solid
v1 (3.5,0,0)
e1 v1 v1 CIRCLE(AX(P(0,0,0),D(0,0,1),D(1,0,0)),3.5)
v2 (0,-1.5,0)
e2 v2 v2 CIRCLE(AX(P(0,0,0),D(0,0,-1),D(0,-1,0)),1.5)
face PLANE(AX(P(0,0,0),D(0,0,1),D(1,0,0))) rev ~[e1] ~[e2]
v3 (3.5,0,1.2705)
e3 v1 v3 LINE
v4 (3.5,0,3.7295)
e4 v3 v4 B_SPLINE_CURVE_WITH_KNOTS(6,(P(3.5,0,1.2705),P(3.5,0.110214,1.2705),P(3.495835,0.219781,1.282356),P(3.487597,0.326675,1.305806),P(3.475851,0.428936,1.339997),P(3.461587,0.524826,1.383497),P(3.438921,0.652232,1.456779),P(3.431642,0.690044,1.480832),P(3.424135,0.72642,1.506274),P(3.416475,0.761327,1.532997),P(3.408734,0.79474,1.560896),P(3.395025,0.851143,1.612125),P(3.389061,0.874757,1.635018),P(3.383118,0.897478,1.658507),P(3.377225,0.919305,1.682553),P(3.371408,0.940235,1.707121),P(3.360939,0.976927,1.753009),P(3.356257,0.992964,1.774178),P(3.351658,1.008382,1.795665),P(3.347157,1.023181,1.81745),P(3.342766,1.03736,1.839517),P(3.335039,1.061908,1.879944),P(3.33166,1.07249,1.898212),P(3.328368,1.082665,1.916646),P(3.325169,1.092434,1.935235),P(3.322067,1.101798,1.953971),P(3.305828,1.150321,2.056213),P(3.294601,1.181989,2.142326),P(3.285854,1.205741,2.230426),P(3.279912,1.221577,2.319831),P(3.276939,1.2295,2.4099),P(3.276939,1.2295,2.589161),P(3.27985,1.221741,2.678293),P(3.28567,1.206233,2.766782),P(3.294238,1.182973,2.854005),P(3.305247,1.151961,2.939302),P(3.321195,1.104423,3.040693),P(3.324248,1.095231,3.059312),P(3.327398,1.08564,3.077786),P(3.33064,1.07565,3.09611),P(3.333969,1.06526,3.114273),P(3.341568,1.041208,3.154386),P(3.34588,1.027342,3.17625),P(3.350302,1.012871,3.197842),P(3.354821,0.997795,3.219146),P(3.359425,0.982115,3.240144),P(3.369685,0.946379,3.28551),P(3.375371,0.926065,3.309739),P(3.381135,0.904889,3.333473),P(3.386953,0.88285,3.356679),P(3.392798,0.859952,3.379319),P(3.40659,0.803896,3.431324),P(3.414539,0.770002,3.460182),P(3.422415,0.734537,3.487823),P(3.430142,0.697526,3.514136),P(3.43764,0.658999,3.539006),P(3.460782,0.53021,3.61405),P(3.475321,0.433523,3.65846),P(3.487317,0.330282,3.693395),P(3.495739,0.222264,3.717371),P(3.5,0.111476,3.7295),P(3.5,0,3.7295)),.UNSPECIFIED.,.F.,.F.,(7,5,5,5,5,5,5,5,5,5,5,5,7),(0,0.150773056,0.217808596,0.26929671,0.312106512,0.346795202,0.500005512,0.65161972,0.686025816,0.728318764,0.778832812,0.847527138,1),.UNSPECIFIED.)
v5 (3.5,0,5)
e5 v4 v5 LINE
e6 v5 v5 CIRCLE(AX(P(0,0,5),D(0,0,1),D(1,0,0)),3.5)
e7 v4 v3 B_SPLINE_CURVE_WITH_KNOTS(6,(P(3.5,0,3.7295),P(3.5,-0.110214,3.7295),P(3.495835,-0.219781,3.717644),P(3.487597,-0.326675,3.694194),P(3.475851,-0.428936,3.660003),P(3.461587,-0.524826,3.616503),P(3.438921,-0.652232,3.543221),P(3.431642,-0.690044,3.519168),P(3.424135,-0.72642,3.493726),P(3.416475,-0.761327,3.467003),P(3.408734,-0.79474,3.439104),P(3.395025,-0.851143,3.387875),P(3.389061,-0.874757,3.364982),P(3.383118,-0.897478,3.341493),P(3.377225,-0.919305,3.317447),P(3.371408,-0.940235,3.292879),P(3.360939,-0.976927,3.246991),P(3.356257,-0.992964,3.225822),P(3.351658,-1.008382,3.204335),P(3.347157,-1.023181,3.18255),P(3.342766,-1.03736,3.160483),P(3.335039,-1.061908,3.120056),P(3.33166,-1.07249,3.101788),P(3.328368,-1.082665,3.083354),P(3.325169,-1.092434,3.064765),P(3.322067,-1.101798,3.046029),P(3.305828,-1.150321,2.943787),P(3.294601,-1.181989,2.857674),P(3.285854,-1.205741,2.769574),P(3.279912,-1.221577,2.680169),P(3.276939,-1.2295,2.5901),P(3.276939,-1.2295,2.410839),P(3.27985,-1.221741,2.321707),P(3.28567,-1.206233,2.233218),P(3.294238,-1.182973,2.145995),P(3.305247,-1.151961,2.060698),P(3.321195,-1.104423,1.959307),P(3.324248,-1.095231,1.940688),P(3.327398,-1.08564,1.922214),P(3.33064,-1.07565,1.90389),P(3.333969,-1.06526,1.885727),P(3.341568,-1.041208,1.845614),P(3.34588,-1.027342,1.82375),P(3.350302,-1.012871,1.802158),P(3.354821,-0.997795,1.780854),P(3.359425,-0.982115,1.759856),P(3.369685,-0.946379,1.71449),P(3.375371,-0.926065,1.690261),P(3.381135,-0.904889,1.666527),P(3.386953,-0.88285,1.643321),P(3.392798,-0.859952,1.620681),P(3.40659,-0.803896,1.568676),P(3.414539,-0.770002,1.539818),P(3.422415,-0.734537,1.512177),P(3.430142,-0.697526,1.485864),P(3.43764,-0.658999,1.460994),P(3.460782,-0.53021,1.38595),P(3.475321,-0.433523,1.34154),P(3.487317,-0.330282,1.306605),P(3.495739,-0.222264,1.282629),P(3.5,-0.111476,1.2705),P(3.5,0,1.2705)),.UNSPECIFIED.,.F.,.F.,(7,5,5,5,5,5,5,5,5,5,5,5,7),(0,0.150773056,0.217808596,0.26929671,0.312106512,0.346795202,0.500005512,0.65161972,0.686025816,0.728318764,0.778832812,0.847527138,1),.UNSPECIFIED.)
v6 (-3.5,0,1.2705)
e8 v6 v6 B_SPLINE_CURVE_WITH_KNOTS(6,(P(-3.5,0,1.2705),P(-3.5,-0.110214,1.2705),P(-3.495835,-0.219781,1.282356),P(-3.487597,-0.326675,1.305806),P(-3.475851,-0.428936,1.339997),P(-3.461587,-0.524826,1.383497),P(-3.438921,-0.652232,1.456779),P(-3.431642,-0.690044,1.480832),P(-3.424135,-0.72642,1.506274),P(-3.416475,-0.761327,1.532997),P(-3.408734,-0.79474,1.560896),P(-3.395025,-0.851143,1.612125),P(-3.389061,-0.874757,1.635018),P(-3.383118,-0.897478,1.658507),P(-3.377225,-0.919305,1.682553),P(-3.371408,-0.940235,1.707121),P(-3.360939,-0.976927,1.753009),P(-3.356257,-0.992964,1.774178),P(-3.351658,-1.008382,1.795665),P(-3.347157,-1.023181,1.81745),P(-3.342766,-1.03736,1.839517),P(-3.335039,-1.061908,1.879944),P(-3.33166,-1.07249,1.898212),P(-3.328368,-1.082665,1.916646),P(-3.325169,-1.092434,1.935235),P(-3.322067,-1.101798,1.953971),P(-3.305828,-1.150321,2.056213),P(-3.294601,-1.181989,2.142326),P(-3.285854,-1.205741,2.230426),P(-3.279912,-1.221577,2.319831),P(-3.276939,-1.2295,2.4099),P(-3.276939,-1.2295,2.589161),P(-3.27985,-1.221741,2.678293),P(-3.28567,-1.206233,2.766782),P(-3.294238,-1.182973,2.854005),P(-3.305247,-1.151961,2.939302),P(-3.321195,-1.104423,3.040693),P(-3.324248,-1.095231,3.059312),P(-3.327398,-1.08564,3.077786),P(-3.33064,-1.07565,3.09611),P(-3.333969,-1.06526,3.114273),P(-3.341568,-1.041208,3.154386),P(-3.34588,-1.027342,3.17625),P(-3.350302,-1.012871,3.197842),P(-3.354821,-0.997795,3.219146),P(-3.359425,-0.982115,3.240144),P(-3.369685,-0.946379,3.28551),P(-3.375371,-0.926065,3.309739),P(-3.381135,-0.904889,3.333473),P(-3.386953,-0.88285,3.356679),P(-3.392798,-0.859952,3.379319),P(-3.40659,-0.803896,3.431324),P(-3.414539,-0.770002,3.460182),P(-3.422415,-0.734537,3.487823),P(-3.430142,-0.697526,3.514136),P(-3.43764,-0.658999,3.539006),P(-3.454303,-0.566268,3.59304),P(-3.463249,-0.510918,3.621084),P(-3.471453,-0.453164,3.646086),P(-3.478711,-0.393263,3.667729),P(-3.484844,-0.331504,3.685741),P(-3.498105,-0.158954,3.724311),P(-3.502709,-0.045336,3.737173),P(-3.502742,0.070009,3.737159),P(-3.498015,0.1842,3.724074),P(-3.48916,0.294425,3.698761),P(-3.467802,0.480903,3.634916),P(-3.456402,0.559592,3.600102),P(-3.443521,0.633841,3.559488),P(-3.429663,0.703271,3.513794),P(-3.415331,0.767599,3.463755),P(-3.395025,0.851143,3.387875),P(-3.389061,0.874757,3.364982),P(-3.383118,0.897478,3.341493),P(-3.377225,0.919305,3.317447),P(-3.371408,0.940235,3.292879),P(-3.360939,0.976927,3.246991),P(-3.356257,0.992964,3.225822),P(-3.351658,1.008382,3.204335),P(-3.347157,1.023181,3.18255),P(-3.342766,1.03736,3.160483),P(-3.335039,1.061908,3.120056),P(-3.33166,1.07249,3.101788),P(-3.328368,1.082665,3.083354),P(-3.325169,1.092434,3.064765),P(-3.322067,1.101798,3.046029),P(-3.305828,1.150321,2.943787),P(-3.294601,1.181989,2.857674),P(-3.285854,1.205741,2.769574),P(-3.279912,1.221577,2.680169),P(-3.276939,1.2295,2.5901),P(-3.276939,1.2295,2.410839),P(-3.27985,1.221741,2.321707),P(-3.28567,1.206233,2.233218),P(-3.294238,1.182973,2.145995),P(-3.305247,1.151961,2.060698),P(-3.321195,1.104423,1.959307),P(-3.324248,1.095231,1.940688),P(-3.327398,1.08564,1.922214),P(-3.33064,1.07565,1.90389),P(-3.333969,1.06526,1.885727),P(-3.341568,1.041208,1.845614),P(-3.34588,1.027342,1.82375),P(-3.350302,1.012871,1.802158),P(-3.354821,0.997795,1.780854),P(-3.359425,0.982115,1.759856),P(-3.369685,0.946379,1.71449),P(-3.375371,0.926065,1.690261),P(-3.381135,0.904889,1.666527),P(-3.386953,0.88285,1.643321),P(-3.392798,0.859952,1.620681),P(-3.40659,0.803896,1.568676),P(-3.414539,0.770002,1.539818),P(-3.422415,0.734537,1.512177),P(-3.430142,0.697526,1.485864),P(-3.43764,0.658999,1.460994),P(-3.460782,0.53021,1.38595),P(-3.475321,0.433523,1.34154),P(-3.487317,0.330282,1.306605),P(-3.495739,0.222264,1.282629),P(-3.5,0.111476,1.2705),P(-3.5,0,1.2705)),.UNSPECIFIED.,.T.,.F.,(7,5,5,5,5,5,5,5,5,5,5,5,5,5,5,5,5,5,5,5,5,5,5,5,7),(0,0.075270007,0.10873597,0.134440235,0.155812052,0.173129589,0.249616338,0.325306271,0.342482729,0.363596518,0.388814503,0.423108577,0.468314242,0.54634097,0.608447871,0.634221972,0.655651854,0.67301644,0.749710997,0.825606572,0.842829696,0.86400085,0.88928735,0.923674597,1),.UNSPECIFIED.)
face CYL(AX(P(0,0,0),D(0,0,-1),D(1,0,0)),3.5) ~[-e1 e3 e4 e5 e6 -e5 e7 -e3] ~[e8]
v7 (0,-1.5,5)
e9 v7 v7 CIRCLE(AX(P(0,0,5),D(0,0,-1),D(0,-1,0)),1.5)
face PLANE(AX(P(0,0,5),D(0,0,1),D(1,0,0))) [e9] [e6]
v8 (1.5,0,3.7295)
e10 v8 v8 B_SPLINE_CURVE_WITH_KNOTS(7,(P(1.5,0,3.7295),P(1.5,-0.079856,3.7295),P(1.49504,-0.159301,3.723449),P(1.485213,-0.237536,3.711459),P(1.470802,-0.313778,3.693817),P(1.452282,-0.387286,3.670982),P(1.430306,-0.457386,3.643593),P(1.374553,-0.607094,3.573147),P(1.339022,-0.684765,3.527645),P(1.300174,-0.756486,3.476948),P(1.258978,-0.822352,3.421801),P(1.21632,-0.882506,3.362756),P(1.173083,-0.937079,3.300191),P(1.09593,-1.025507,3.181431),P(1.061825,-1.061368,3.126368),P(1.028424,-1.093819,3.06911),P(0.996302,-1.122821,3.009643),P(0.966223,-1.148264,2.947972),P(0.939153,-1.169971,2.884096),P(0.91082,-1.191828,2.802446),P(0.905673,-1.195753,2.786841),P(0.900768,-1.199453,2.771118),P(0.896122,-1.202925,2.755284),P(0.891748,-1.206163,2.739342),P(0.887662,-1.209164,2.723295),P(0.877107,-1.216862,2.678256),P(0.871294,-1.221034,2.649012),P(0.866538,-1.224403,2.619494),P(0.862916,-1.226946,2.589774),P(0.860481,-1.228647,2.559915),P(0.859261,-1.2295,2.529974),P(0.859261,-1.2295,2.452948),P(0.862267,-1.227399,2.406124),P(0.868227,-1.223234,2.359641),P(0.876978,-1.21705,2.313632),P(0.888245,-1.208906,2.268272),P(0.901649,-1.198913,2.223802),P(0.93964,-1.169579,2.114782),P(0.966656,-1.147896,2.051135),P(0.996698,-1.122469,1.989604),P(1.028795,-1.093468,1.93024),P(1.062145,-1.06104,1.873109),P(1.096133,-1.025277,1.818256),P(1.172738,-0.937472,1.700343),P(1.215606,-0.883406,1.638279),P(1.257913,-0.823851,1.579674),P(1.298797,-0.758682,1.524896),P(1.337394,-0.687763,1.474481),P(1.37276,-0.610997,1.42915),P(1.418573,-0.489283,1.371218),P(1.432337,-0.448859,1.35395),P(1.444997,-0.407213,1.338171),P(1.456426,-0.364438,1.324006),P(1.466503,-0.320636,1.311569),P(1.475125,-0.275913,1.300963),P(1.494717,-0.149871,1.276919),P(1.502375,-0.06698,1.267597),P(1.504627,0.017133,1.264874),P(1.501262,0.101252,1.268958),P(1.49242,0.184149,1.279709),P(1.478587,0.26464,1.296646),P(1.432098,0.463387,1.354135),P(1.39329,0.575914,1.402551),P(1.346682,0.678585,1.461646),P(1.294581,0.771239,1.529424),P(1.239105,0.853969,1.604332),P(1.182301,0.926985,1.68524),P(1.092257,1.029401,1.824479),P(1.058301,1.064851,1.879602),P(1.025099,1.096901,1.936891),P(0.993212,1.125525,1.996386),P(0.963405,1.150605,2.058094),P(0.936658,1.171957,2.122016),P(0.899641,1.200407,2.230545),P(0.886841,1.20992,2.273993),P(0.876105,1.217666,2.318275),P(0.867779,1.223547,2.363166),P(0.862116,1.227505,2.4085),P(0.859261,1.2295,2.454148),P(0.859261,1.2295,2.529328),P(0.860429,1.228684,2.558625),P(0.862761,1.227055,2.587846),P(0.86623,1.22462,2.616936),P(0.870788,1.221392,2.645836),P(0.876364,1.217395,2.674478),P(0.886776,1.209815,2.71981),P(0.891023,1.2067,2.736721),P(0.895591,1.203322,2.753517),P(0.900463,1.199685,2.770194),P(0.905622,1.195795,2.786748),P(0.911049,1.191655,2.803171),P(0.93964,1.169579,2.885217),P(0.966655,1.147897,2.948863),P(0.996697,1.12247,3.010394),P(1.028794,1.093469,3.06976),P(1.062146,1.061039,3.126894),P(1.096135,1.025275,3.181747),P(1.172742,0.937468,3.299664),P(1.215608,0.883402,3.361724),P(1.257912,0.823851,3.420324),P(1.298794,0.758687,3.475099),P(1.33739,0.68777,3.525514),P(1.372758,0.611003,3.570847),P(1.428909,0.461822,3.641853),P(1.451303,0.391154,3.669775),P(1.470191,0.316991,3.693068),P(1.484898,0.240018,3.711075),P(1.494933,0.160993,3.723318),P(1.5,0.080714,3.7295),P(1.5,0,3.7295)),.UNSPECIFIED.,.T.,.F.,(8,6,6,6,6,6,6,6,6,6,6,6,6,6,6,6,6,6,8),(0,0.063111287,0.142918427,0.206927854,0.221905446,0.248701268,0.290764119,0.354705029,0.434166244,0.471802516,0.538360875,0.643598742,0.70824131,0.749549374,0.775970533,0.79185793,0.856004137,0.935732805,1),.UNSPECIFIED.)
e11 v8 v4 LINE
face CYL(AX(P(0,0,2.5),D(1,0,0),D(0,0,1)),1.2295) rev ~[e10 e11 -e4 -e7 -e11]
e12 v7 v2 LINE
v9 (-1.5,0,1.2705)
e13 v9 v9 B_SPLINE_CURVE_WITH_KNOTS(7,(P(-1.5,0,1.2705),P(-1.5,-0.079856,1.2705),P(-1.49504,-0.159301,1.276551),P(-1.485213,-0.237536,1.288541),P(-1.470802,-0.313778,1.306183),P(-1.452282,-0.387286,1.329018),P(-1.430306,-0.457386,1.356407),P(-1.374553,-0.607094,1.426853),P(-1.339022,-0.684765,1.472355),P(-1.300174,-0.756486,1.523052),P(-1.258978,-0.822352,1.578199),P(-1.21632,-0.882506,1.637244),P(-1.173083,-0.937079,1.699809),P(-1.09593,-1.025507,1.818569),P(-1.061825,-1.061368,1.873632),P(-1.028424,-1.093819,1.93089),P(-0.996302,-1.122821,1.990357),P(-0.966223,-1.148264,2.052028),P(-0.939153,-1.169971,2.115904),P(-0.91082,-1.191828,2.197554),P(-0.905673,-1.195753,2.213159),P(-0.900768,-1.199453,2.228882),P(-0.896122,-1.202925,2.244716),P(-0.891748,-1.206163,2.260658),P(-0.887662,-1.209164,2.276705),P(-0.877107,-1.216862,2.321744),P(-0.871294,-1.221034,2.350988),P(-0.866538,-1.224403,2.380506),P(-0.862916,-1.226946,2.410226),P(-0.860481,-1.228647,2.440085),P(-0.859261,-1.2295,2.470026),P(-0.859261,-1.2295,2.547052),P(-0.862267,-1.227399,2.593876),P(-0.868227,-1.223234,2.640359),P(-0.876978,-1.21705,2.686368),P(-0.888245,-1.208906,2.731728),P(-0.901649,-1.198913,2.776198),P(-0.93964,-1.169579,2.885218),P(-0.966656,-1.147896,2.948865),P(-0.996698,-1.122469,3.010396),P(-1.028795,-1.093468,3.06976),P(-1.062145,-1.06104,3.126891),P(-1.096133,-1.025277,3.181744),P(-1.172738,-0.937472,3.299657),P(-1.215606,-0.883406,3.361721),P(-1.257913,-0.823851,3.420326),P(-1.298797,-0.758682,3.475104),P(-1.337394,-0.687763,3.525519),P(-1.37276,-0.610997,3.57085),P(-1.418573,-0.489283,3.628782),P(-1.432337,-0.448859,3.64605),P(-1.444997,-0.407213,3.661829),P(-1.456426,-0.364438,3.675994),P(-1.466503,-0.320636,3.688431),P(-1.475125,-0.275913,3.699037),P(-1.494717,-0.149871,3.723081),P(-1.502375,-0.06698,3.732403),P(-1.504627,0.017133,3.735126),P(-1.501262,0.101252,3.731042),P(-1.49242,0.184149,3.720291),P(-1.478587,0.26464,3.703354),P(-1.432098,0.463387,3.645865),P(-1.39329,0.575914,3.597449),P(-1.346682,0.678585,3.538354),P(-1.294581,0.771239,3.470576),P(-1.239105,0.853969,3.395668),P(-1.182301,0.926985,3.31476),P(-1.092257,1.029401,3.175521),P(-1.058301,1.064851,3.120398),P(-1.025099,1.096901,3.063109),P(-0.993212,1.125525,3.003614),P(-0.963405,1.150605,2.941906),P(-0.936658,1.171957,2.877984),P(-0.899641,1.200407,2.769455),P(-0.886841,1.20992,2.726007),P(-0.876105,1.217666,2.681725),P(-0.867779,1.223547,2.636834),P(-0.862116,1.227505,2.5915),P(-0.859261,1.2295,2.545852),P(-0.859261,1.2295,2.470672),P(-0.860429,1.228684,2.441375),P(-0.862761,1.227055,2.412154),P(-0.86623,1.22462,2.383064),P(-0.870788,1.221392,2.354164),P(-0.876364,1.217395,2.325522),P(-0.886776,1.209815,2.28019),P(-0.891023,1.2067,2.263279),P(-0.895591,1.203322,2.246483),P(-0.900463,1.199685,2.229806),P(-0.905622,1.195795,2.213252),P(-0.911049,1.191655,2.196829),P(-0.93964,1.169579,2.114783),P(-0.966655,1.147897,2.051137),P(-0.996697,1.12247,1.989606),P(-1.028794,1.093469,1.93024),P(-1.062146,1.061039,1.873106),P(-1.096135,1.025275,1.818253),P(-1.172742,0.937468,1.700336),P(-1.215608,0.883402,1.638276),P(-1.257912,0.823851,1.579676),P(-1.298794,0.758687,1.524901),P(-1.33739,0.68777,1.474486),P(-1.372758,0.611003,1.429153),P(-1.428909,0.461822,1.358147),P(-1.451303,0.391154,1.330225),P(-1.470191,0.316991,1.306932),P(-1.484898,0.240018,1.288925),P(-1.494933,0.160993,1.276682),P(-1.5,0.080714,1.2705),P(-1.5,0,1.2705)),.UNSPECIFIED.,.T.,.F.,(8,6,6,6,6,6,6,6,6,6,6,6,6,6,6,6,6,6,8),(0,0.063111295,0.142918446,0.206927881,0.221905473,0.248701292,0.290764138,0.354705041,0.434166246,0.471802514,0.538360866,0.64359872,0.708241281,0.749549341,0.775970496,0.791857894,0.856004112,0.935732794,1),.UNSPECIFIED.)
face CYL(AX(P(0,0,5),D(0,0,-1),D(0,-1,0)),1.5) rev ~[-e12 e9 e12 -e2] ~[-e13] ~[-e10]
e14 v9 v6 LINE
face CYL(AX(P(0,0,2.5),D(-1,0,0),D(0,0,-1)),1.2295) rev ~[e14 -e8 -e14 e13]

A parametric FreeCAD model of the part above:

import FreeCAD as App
import Part
import Sketcher
from FreeCAD import Vector

doc = App.newDocument("Part")
body = doc.addObject("PartDesign::Body", "Body")

# Sketch on XY plane
sketch1 = body.newObject("Sketcher::SketchObject", "Sketch")
sketch1.AttachmentSupport = (doc.getObject("XY_Plane"), [""])
sketch1.MapMode = "FlatFace"
sketch1.addGeometry(Part.Circle(Vector(0, 0, 0), Vector(0, 0, 1), 3.5), False)
sketch1.addConstraint(Sketcher.Constraint("Coincident", 0, 3, -1, 1))
sketch1.addConstraint(Sketcher.Constraint("Diameter", 0, 7.0))
pad1 = body.newObject("PartDesign::Pad", "Pad")
pad1.Profile = sketch1
pad1.Length = 5

# Sketch on XY plane
sketch2 = body.newObject("Sketcher::SketchObject", "Sketch001")
sketch2.AttachmentSupport = (doc.getObject("XY_Plane"), [""])
sketch2.MapMode = "FlatFace"
sketch2.AttachmentOffset = App.Placement(Vector(0, 0, 5), App.Rotation())
sketch2.addGeometry(Part.Circle(Vector(0, 0, 0), Vector(0, 0, 1), 1.5), False)
sketch2.addConstraint(Sketcher.Constraint("Coincident", 0, 3, -1, 1))
sketch2.addConstraint(Sketcher.Constraint("Diameter", 0, 3.0))
doc.recompute()
hole = body.newObject("PartDesign::Hole", "Hole")
hole.Profile = sketch2
hole.ThreadType = "None"
hole.Diameter = 3
hole.DepthType = "ThroughAll"

# Sketch on YZ plane
sketch3 = body.newObject("Sketcher::SketchObject", "Sketch002")
sketch3.AttachmentSupport = (doc.getObject("YZ_Plane"), [""])
sketch3.MapMode = "FlatFace"
sketch3.addGeometry(Part.Circle(Vector(0, 2.5, 0), Vector(0, 0, 1), 1.2), False)
sketch3.addConstraint(Sketcher.Constraint("PointOnObject", 0, 3, -2))
sketch3.addConstraint(Sketcher.Constraint("Diameter", 0, 2.459))
sketch3.addConstraint(Sketcher.Constraint("DistanceY", -1, 1, 0, 3, 2.5))
doc.recompute()
hole2 = body.newObject("PartDesign::Hole", "Hole001")
hole2.Profile = sketch3
hole2.ThreadType = "None"
hole2.Diameter = 2.459
hole2.DepthType = "ThroughAll"

# Sketch on YZ plane
sketch4 = body.newObject("Sketcher::SketchObject", "Sketch003")
sketch4.AttachmentSupport = (doc.getObject("YZ_Plane"), [""])
sketch4.MapMode = "FlatFace"
sketch4.addGeometry(Part.Circle(Vector(0, 2.5, 0), Vector(0, 0, 1), 1.2), False)
sketch4.addConstraint(Sketcher.Constraint("PointOnObject", 0, 3, -2))
sketch4.addConstraint(Sketcher.Constraint("Diameter", 0, 2.459))
sketch4.addConstraint(Sketcher.Constraint("DistanceY", -1, 1, 0, 3, 2.5))
doc.recompute()
hole3 = body.newObject("PartDesign::Hole", "Hole002")
hole3.Profile = sketch4
hole3.ThreadType = "None"
hole3.Diameter = 2.459
hole3.DepthType = "ThroughAll"
hole3.Reversed = True

doc.recompute()
